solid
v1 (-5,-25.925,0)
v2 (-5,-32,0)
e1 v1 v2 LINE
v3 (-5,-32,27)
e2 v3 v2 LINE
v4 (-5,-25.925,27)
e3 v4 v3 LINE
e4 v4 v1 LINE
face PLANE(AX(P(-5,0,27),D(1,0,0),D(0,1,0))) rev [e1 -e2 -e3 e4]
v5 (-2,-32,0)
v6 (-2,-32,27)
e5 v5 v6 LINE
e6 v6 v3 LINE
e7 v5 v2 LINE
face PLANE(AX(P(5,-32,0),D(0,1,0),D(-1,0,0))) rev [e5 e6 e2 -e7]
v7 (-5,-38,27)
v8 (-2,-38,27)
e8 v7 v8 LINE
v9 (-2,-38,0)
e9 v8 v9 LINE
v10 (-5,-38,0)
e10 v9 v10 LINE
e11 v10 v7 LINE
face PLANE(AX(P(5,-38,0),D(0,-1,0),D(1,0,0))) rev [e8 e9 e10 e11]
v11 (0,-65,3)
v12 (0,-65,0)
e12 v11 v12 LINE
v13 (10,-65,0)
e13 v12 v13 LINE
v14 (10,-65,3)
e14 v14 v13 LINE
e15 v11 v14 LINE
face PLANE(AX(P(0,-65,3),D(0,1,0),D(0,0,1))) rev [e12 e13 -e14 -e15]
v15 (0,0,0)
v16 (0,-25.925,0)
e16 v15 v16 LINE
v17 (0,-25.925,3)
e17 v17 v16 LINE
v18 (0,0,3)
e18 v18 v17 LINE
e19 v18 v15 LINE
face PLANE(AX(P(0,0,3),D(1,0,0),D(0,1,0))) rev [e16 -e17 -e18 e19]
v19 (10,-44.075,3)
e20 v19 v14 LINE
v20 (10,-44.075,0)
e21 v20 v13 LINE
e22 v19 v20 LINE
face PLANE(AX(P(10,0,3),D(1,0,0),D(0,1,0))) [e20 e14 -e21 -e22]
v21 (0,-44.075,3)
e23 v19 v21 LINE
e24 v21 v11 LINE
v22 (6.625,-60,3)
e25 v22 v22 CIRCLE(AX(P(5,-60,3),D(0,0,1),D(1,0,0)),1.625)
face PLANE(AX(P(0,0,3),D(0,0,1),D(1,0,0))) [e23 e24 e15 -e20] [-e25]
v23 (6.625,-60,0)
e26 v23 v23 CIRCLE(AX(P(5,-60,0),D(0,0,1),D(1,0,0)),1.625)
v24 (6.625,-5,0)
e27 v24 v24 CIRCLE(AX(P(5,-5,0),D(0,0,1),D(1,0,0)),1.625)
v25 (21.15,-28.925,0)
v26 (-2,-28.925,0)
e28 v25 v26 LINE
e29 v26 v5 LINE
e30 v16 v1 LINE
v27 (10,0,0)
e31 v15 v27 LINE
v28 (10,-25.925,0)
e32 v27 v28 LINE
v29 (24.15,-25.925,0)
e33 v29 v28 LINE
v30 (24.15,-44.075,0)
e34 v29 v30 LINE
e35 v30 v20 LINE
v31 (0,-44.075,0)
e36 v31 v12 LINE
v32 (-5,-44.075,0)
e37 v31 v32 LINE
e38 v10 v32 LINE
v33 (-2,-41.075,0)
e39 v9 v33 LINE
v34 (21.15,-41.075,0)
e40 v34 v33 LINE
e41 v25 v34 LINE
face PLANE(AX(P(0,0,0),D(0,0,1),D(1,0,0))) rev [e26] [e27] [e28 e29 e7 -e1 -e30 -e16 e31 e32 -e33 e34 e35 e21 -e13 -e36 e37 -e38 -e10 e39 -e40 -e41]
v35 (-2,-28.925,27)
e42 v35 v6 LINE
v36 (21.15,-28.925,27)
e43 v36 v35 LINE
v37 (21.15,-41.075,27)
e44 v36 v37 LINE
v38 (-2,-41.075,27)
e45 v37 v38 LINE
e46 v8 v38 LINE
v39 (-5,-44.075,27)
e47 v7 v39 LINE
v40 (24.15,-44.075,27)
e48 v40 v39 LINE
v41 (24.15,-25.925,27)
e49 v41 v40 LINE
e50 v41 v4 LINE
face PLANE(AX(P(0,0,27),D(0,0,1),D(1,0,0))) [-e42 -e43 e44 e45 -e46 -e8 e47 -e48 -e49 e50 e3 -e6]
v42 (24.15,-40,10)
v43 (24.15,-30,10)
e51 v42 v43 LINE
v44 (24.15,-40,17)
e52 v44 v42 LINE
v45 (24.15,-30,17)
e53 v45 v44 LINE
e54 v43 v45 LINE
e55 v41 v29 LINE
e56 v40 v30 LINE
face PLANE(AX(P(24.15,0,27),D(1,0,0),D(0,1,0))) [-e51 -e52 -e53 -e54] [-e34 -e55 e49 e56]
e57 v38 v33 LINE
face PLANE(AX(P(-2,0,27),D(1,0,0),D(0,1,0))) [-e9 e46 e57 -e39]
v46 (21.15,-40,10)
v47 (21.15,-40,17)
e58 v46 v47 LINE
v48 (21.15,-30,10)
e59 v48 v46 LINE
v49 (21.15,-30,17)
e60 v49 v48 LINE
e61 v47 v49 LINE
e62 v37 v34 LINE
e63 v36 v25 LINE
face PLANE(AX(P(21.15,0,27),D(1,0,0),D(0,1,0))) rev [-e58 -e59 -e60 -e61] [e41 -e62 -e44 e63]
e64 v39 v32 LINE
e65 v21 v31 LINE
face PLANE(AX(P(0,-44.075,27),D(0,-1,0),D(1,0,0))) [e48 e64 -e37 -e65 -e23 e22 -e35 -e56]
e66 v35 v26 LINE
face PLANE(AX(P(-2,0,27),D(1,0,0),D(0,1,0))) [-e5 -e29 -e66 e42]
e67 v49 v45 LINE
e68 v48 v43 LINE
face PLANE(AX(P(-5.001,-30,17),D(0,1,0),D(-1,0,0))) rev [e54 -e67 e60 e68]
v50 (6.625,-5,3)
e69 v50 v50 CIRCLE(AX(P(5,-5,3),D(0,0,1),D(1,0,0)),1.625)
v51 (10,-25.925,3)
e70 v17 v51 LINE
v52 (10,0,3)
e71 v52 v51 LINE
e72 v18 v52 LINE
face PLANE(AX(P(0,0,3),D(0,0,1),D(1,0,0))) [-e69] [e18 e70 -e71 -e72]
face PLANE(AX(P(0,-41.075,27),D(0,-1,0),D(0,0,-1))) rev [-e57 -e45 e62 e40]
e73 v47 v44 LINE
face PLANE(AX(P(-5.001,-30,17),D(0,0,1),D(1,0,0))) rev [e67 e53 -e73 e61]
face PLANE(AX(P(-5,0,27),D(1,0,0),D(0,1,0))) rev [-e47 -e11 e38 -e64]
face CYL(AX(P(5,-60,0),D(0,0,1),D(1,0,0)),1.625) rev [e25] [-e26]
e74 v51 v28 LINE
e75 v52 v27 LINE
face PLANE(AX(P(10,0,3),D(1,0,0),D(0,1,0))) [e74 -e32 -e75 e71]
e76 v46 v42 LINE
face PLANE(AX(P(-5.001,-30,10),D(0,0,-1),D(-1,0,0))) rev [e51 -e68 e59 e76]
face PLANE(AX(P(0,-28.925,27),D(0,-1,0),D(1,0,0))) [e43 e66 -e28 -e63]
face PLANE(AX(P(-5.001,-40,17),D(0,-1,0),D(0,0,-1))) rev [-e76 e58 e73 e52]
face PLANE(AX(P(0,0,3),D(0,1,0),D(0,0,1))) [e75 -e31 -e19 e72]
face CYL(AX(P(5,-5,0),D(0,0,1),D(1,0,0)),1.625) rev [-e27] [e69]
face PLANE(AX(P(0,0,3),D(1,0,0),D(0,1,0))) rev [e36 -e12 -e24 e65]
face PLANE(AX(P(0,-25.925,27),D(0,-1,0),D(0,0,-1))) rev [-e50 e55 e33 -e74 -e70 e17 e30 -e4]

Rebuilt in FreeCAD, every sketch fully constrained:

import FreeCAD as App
import Part
import Sketcher
Q = App.Units.Quantity

doc = App.newDocument("Part")
body = doc.addObject("PartDesign::Body", "Body")

# Sketch on XY plane
sketch1 = doc.addObject("Sketcher::SketchObject", "Sketch")
body.addObject(sketch1)
sketch1.AttachmentSupport = (doc.XY_Plane, [""])
sketch1.MapMode = "FlatFace"
sketch1.addGeometry([
    Part.LineSegment(App.Vector(0, 0, 0), App.Vector(0, -26, 0)),
    Part.LineSegment(App.Vector(0, -26, 0), App.Vector(10, -26, 0)),
    Part.LineSegment(App.Vector(10, -26, 0), App.Vector(10, 0, 0)),
    Part.LineSegment(App.Vector(10, 0, 0), App.Vector(0, 0, 0)),
], False)
sketch1.addConstraint([
    Sketcher.Constraint("Coincident", 0, 2, 1, 1),
    Sketcher.Constraint("Coincident", 1, 2, 2, 1),
    Sketcher.Constraint("Coincident", 2, 2, 3, 1),
    Sketcher.Constraint("Coincident", 3, 2, 0, 1),
    Sketcher.Constraint("Vertical", 0),
    Sketcher.Constraint("Horizontal", 1),
    Sketcher.Constraint("Vertical", 2),
    Sketcher.Constraint("Horizontal", 3),
    Sketcher.Constraint("Coincident", 3, 2, -1, 1),
    Sketcher.Constraint("DistanceX", 1, 1, 1, 2, Q("10 mm")),
    Sketcher.Constraint("DistanceY", 0, 2, 0, 1, Q("25.925 mm")),
])
pad1 = doc.addObject("PartDesign::Pad", "Pad")
body.addObject(pad1)
pad1.Profile = sketch1
pad1.Length = 3
body2 = doc.addObject("PartDesign::Body", "Body001")

# Sketch on XY plane
sketch2 = doc.addObject("Sketcher::SketchObject", "Sketch001")
body2.addObject(sketch2)
sketch2.AttachmentSupport = (doc.getObject("XY_Plane001"), [""])
sketch2.MapMode = "FlatFace"
sketch2.addGeometry([
    Part.LineSegment(App.Vector(0, -44, 0), App.Vector(0, -65, 0)),
    Part.LineSegment(App.Vector(0, -65, 0), App.Vector(10, -65, 0)),
    Part.LineSegment(App.Vector(10, -65, 0), App.Vector(10, -44, 0)),
    Part.LineSegment(App.Vector(10, -44, 0), App.Vector(0, -44, 0)),
], False)
sketch2.addConstraint([
    Sketcher.Constraint("Coincident", 0, 2, 1, 1),
    Sketcher.Constraint("Coincident", 1, 2, 2, 1),
    Sketcher.Constraint("Coincident", 2, 2, 3, 1),
    Sketcher.Constraint("Coincident", 3, 2, 0, 1),
    Sketcher.Constraint("Vertical", 0),
    Sketcher.Constraint("Horizontal", 1),
    Sketcher.Constraint("Vertical", 2),
    Sketcher.Constraint("Horizontal", 3),
    Sketcher.Constraint("PointOnObject", 0, 2, -2),
    Sketcher.Constraint("DistanceX", 1, 1, 1, 2, Q("10 mm")),
    Sketcher.Constraint("DistanceY", 0, 2, -1, 1, Q("65 mm")),
    Sketcher.Constraint("DistanceY", 0, 2, 0, 1, Q("20.925 mm")),
])
pad2 = doc.addObject("PartDesign::Pad", "Pad001")
body2.addObject(pad2)
pad2.Profile = sketch2
pad2.Length = 3
body.AllowCompound = True
doc.recompute()

boolean = doc.addObject("PartDesign::Boolean", "Boolean")
body.addObject(boolean)
boolean.Type = "Fuse"
boolean.addObjects([body2])

# Sketch on XY plane
sketch3 = doc.addObject("Sketcher::SketchObject", "Sketch002")
body.addObject(sketch3)
sketch3.AttachmentSupport = (doc.XY_Plane, [""])
sketch3.MapMode = "FlatFace"
sketch3.addGeometry([
    Part.LineSegment(App.Vector(-5, -44, 0), App.Vector(24, -44, 0)),  # 0
    Part.LineSegment(App.Vector(24, -44, 0), App.Vector(24, -26, 0)),  # 1
    Part.LineSegment(App.Vector(24, -26, 0), App.Vector(-5, -26, 0)),  # 2
    Part.LineSegment(App.Vector(-5, -26, 0), App.Vector(-5, -44, 0)),  # 3
    Part.LineSegment(App.Vector(-2, -41, 0), App.Vector(-2, -29, 0)),  # 4
    Part.LineSegment(App.Vector(-2, -29, 0), App.Vector(21, -29, 0)),  # 5
    Part.LineSegment(App.Vector(21, -29, 0), App.Vector(21, -41, 0)),  # 6
    Part.LineSegment(App.Vector(21, -41, 0), App.Vector(-2, -41, 0)),  # 7
], False)
sketch3.addConstraint([
    Sketcher.Constraint("Coincident", 0, 2, 1, 1),
    Sketcher.Constraint("Coincident", 1, 2, 2, 1),
    Sketcher.Constraint("Coincident", 2, 2, 3, 1),
    Sketcher.Constraint("Coincident", 3, 2, 0, 1),
    Sketcher.Constraint("Coincident", 4, 2, 5, 1),
    Sketcher.Constraint("Coincident", 5, 2, 6, 1),
    Sketcher.Constraint("Coincident", 6, 2, 7, 1),
    Sketcher.Constraint("Coincident", 7, 2, 4, 1),
    Sketcher.Constraint("Horizontal", 0),
    Sketcher.Constraint("Vertical", 1),
    Sketcher.Constraint("Horizontal", 2),
    Sketcher.Constraint("Vertical", 3),
    Sketcher.Constraint("Vertical", 4),
    Sketcher.Constraint("Horizontal", 5),
    Sketcher.Constraint("Vertical", 6),
    Sketcher.Constraint("Horizontal", 7),
    Sketcher.Constraint("DistanceX", 2, 2, -1, 1, Q("5 mm")),
    Sketcher.Constraint("DistanceX", 4, 2, -1, 1, Q("2 mm")),
    Sketcher.Constraint("DistanceY", 4, 2, 2, 2, Q("3 mm")),
    Sketcher.Constraint("DistanceX", 5, 2, 1, 2, Q("3 mm")),
    Sketcher.Constraint("DistanceY", 0, 2, 6, 2, Q("3 mm")),
    Sketcher.Constraint("DistanceX", 0, 1, 0, 2, Q("29.15 mm")),
    Sketcher.Constraint("DistanceY", 1, 1, 1, 2, Q("18.15 mm")),
    Sketcher.Constraint("DistanceY", 0, 2, -1, 1, Q("44.075 mm")),
])
pad3 = doc.addObject("PartDesign::Pad", "Pad002")
body.addObject(pad3)
pad3.Profile = sketch3
pad3.Length = 27

# Sketch on XY plane
sketch4 = doc.addObject("Sketcher::SketchObject", "Sketch003")
body.addObject(sketch4)
sketch4.AttachmentSupport = (doc.XY_Plane, [""])
sketch4.MapMode = "FlatFace"
sketch4.AttachmentOffset = App.Placement(App.Vector(0, 0, 3), App.Rotation())
sketch4.addGeometry(Part.Circle(App.Vector(5, -5, 0), App.Vector(0, 0, 1), 1.6), False)
sketch4.addConstraint([
    Sketcher.Constraint("Diameter", 0, Q("3.25 mm")),
    Sketcher.Constraint("DistanceX", -1, 1, 0, 3, Q("5 mm")),
    Sketcher.Constraint("DistanceY", 0, 3, -1, 1, Q("5 mm")),
])
pocket1 = doc.addObject("PartDesign::Pocket", "Pocket")
body.addObject(pocket1)
pocket1.Profile = sketch4
pocket1.Type = "ThroughAll"
doc.recompute()

linearpattern = doc.addObject("PartDesign::LinearPattern", "LinearPattern")
body.addObject(linearpattern)
linearpattern.Originals = [pocket1]
linearpattern.Direction = (doc.Y_Axis, [""])
linearpattern.Mode = "offset"
linearpattern.Offset = 55
linearpattern.Occurrences = 2
linearpattern.Reversed = True
body.Tip = linearpattern

# Sketch on YZ plane
sketch5 = doc.addObject("Sketcher::SketchObject", "Sketch004")
body.addObject(sketch5)
sketch5.AttachmentSupport = (doc.YZ_Plane, [""])
sketch5.MapMode = "FlatFace"
sketch5.AttachmentOffset = App.Placement(App.Vector(0, 0, -5), App.Rotation())
sketch5.addGeometry([
    Part.LineSegment(App.Vector(-32, 0, 0), App.Vector(-38, 0, 0)),
    Part.LineSegment(App.Vector(-38, 0, 0), App.Vector(-38, 27, 0)),
    Part.LineSegment(App.Vector(-38, 27, 0), App.Vector(-32, 27, 0)),
    Part.LineSegment(App.Vector(-32, 27, 0), App.Vector(-32, 0, 0)),
], False)
sketch5.addConstraint([
    Sketcher.Constraint("Coincident", 0, 2, 1, 1),
    Sketcher.Constraint("Coincident", 1, 2, 2, 1),
    Sketcher.Constraint("Coincident", 2, 2, 3, 1),
    Sketcher.Constraint("Coincident", 3, 2, 0, 1),
    Sketcher.Constraint("Horizontal", 0),
    Sketcher.Constraint("Vertical", 1),
    Sketcher.Constraint("Horizontal", 2),
    Sketcher.Constraint("Vertical", 3),
    Sketcher.Constraint("PointOnObject", 0, 2, -1),
    Sketcher.Constraint("DistanceX", 0, 2, 0, 1, Q("6 mm")),
    Sketcher.Constraint("DistanceY", 1, 1, 1, 2, Q("27 mm")),
    Sketcher.Constraint("DistanceX", 0, 2, -1, 1, Q("38 mm")),
])
pocket2 = doc.addObject("PartDesign::Pocket", "Pocket001")
body.addObject(pocket2)
pocket2.Profile = sketch5
pocket2.Length = 10
pocket2.Reversed = True

# Sketch on YZ plane
sketch6 = doc.addObject("Sketcher::SketchObject", "Sketch005")
body.addObject(sketch6)
sketch6.AttachmentSupport = (doc.YZ_Plane, [""])
sketch6.MapMode = "FlatFace"
sketch6.AttachmentOffset = App.Placement(App.Vector(0, 0, 24.15), App.Rotation())
sketch6.addGeometry([
    Part.LineSegment(App.Vector(-30, 17, 0), App.Vector(-40, 17, 0)),
    Part.LineSegment(App.Vector(-40, 17, 0), App.Vector(-40, 10, 0)),
    Part.LineSegment(App.Vector(-40, 10, 0), App.Vector(-30, 10, 0)),
    Part.LineSegment(App.Vector(-30, 10, 0), App.Vector(-30, 17, 0)),
], False)
sketch6.addConstraint([
    Sketcher.Constraint("Coincident", 0, 2, 1, 1),
    Sketcher.Constraint("Coincident", 1, 2, 2, 1),
    Sketcher.Constraint("Coincident", 2, 2, 3, 1),
    Sketcher.Constraint("Coincident", 3, 2, 0, 1),
    Sketcher.Constraint("Horizontal", 0),
    Sketcher.Constraint("Vertical", 1),
    Sketcher.Constraint("Horizontal", 2),
    Sketcher.Constraint("Vertical", 3),
    Sketcher.Constraint("DistanceX", 0, 2, 0, 1, Q("10 mm")),
    Sketcher.Constraint("DistanceY", 1, 2, 1, 1, Q("7 mm")),
    Sketcher.Constraint("DistanceX", 0, 2, -1, 1, Q("40 mm")),
    Sketcher.Constraint("DistanceY", -1, 1, 0, 2, Q("17 mm")),
])
pocket3 = doc.addObject("PartDesign::Pocket", "Pocket002")
body.addObject(pocket3)
pocket3.Profile = sketch6
pocket3.Type = "UpToFirst"

doc.recompute()
